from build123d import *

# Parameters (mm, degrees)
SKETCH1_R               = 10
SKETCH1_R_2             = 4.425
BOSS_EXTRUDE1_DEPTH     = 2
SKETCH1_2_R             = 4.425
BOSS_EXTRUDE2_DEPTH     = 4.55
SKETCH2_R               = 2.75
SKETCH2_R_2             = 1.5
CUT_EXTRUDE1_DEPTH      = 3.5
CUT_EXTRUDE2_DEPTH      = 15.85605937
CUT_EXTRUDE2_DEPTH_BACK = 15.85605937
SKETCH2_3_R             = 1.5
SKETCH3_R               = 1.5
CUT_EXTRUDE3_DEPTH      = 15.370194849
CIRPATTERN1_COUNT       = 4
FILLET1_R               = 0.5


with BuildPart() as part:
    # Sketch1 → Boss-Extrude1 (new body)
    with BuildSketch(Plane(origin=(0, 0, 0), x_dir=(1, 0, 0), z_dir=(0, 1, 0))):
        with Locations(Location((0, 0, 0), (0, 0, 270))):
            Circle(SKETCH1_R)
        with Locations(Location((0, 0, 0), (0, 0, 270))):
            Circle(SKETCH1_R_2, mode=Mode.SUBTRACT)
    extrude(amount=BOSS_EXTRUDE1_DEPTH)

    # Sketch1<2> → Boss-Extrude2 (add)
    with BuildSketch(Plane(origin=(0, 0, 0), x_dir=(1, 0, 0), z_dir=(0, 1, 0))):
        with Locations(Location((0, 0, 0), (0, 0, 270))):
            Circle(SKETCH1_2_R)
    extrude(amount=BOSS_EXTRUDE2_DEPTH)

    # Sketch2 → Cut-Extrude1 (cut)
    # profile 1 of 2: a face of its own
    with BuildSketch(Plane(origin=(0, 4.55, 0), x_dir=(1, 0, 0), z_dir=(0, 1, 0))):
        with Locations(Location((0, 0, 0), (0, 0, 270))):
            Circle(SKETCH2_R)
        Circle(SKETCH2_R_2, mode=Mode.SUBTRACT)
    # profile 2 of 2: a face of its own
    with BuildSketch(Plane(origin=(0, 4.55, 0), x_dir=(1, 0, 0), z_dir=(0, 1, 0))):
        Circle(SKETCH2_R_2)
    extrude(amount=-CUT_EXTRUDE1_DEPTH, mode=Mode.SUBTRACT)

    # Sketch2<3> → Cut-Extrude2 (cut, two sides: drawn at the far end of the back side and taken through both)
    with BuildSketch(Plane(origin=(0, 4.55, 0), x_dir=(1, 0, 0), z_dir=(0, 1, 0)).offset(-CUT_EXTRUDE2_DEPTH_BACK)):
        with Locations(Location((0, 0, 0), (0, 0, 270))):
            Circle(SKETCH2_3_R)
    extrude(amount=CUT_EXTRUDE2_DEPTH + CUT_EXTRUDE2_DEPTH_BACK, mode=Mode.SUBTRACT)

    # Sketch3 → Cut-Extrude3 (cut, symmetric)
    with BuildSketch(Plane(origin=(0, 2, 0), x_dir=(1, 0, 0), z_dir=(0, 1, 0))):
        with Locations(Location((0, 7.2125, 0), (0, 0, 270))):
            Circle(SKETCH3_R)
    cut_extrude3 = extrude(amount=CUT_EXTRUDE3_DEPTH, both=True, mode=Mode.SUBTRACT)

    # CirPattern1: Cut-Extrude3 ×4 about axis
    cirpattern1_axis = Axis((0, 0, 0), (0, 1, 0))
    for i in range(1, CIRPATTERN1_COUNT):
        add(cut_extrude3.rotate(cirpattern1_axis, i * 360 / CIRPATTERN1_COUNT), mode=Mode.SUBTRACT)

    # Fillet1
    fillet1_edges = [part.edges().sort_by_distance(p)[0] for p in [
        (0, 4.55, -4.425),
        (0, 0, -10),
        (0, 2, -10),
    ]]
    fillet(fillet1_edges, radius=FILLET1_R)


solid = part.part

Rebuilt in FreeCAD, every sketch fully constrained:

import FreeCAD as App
import Part
import Sketcher
from FreeCAD import Vector


def edges_at(feature, points):
    """Names of the edges that pass closest to the given points."""
    edges = feature.Shape.Edges
    near = lambda p: min(range(len(edges)), key=lambda i: edges[i].distToShape(Part.Vertex(*p))[0])
    return sorted({f"Edge{near(p) + 1}" for p in points})

doc = App.newDocument("Part")
body = doc.addObject("PartDesign::Body", "Body")

# Sketch on XZ plane
sketch1 = body.newObject("Sketcher::SketchObject", "Sketch")
sketch1.AttachmentSupport = (doc.getObject("XZ_Plane"), [""])
sketch1.MapMode = "FlatFace"
sketch1.addGeometry([
    Part.Circle(Vector(0, 0, 0), Vector(0, 0, 1), 10),
    Part.Circle(Vector(0, 0, 0), Vector(0, 0, 1), 4.425),
], False)
sketch1.addConstraint([
    Sketcher.Constraint("Coincident", 0, 3, -1, 1),
    Sketcher.Constraint("Coincident", 1, 3, -1, 1),
    Sketcher.Constraint("Diameter", 0, 20.0),
    Sketcher.Constraint("Diameter", 1, 8.85),
])
pad1 = body.newObject("PartDesign::Pad", "Pad")
pad1.Profile = sketch1
pad1.Length = 2
pad1.Reversed = True

# Sketch on XZ plane
sketch2 = body.newObject("Sketcher::SketchObject", "Sketch001")
sketch2.AttachmentSupport = (doc.getObject("XZ_Plane"), [""])
sketch2.MapMode = "FlatFace"
sketch2.addGeometry(Part.Circle(Vector(0, 0, 0), Vector(0, 0, 1), 4.425), False)
sketch2.addConstraint([
    Sketcher.Constraint("Coincident", 0, 3, -1, 1),
    Sketcher.Constraint("Diameter", 0, 8.85),
])
pad2 = body.newObject("PartDesign::Pad", "Pad001")
pad2.Profile = sketch2
pad2.Length = 4.55
pad2.Reversed = True

# Sketch on XZ plane
sketch3 = body.newObject("Sketcher::SketchObject", "Sketch002")
sketch3.AttachmentSupport = (doc.getObject("XZ_Plane"), [""])
sketch3.MapMode = "FlatFace"
sketch3.AttachmentOffset = App.Placement(Vector(0, 0, -4.55), App.Rotation())
sketch3.addGeometry(Part.Circle(Vector(0, 0, 0), Vector(0, 0, 1), 2.75), False)
sketch3.addConstraint([
    Sketcher.Constraint("Coincident", 0, 3, -1, 1),
    Sketcher.Constraint("Diameter", 0, 5.5),
])
pocket1 = body.newObject("PartDesign::Pocket", "Pocket")
pocket1.Profile = sketch3
pocket1.Length = 3.5
pocket1.Reversed = True

# Sketch on XZ plane
sketch4 = body.newObject("Sketcher::SketchObject", "Sketch003")
sketch4.AttachmentSupport = (doc.getObject("XZ_Plane"), [""])
sketch4.MapMode = "FlatFace"
sketch4.AttachmentOffset = App.Placement(Vector(0, 0, -4.55), App.Rotation())
sketch4.addGeometry(Part.Circle(Vector(0, 0, 0), Vector(0, 0, 1), 1.5), False)
sketch4.addConstraint([
    Sketcher.Constraint("Coincident", 0, 3, -1, 1),
    Sketcher.Constraint("Diameter", 0, 3.0),
])
pocket2 = body.newObject("PartDesign::Pocket", "Pocket001")
pocket2.Profile = sketch4
pocket2.Type = "ThroughAll"
pocket2.Midplane = True

# Sketch on XZ plane
sketch5 = body.newObject("Sketcher::SketchObject", "Sketch004")
sketch5.AttachmentSupport = (doc.getObject("XZ_Plane"), [""])
sketch5.MapMode = "FlatFace"
sketch5.AttachmentOffset = App.Placement(Vector(0, 0, -2), App.Rotation())
sketch5.addGeometry(Part.Circle(Vector(0, -7.2125, 0), Vector(0, 0, 1), 1.5), False)
sketch5.addConstraint([
    Sketcher.Constraint("PointOnObject", 0, 3, -2),
    Sketcher.Constraint("Diameter", 0, 3.0),
    Sketcher.Constraint("DistanceY", 0, 3, -1, 1, 7.2125),
])
pocket3 = body.newObject("PartDesign::Pocket", "Pocket002")
pocket3.Profile = sketch5
pocket3.Length = 30.74039
pocket3.Midplane = True
doc.recompute()

polarpattern = body.newObject("PartDesign::PolarPattern", "PolarPattern")
polarpattern.Originals = [pocket3]
polarpattern.Axis = (doc.getObject("Y_Axis"), [""])
polarpattern.Angle = 360
polarpattern.Occurrences = 4
body.Tip = polarpattern
doc.recompute()

fillet = body.newObject("PartDesign::Fillet", "Fillet")
fillet.Base = (polarpattern, edges_at(polarpattern, [(0, 4.55, -4.425), (0, 0, -10), (0, 2, -10)]))
fillet.Radius = 0.5

doc.recompute()
